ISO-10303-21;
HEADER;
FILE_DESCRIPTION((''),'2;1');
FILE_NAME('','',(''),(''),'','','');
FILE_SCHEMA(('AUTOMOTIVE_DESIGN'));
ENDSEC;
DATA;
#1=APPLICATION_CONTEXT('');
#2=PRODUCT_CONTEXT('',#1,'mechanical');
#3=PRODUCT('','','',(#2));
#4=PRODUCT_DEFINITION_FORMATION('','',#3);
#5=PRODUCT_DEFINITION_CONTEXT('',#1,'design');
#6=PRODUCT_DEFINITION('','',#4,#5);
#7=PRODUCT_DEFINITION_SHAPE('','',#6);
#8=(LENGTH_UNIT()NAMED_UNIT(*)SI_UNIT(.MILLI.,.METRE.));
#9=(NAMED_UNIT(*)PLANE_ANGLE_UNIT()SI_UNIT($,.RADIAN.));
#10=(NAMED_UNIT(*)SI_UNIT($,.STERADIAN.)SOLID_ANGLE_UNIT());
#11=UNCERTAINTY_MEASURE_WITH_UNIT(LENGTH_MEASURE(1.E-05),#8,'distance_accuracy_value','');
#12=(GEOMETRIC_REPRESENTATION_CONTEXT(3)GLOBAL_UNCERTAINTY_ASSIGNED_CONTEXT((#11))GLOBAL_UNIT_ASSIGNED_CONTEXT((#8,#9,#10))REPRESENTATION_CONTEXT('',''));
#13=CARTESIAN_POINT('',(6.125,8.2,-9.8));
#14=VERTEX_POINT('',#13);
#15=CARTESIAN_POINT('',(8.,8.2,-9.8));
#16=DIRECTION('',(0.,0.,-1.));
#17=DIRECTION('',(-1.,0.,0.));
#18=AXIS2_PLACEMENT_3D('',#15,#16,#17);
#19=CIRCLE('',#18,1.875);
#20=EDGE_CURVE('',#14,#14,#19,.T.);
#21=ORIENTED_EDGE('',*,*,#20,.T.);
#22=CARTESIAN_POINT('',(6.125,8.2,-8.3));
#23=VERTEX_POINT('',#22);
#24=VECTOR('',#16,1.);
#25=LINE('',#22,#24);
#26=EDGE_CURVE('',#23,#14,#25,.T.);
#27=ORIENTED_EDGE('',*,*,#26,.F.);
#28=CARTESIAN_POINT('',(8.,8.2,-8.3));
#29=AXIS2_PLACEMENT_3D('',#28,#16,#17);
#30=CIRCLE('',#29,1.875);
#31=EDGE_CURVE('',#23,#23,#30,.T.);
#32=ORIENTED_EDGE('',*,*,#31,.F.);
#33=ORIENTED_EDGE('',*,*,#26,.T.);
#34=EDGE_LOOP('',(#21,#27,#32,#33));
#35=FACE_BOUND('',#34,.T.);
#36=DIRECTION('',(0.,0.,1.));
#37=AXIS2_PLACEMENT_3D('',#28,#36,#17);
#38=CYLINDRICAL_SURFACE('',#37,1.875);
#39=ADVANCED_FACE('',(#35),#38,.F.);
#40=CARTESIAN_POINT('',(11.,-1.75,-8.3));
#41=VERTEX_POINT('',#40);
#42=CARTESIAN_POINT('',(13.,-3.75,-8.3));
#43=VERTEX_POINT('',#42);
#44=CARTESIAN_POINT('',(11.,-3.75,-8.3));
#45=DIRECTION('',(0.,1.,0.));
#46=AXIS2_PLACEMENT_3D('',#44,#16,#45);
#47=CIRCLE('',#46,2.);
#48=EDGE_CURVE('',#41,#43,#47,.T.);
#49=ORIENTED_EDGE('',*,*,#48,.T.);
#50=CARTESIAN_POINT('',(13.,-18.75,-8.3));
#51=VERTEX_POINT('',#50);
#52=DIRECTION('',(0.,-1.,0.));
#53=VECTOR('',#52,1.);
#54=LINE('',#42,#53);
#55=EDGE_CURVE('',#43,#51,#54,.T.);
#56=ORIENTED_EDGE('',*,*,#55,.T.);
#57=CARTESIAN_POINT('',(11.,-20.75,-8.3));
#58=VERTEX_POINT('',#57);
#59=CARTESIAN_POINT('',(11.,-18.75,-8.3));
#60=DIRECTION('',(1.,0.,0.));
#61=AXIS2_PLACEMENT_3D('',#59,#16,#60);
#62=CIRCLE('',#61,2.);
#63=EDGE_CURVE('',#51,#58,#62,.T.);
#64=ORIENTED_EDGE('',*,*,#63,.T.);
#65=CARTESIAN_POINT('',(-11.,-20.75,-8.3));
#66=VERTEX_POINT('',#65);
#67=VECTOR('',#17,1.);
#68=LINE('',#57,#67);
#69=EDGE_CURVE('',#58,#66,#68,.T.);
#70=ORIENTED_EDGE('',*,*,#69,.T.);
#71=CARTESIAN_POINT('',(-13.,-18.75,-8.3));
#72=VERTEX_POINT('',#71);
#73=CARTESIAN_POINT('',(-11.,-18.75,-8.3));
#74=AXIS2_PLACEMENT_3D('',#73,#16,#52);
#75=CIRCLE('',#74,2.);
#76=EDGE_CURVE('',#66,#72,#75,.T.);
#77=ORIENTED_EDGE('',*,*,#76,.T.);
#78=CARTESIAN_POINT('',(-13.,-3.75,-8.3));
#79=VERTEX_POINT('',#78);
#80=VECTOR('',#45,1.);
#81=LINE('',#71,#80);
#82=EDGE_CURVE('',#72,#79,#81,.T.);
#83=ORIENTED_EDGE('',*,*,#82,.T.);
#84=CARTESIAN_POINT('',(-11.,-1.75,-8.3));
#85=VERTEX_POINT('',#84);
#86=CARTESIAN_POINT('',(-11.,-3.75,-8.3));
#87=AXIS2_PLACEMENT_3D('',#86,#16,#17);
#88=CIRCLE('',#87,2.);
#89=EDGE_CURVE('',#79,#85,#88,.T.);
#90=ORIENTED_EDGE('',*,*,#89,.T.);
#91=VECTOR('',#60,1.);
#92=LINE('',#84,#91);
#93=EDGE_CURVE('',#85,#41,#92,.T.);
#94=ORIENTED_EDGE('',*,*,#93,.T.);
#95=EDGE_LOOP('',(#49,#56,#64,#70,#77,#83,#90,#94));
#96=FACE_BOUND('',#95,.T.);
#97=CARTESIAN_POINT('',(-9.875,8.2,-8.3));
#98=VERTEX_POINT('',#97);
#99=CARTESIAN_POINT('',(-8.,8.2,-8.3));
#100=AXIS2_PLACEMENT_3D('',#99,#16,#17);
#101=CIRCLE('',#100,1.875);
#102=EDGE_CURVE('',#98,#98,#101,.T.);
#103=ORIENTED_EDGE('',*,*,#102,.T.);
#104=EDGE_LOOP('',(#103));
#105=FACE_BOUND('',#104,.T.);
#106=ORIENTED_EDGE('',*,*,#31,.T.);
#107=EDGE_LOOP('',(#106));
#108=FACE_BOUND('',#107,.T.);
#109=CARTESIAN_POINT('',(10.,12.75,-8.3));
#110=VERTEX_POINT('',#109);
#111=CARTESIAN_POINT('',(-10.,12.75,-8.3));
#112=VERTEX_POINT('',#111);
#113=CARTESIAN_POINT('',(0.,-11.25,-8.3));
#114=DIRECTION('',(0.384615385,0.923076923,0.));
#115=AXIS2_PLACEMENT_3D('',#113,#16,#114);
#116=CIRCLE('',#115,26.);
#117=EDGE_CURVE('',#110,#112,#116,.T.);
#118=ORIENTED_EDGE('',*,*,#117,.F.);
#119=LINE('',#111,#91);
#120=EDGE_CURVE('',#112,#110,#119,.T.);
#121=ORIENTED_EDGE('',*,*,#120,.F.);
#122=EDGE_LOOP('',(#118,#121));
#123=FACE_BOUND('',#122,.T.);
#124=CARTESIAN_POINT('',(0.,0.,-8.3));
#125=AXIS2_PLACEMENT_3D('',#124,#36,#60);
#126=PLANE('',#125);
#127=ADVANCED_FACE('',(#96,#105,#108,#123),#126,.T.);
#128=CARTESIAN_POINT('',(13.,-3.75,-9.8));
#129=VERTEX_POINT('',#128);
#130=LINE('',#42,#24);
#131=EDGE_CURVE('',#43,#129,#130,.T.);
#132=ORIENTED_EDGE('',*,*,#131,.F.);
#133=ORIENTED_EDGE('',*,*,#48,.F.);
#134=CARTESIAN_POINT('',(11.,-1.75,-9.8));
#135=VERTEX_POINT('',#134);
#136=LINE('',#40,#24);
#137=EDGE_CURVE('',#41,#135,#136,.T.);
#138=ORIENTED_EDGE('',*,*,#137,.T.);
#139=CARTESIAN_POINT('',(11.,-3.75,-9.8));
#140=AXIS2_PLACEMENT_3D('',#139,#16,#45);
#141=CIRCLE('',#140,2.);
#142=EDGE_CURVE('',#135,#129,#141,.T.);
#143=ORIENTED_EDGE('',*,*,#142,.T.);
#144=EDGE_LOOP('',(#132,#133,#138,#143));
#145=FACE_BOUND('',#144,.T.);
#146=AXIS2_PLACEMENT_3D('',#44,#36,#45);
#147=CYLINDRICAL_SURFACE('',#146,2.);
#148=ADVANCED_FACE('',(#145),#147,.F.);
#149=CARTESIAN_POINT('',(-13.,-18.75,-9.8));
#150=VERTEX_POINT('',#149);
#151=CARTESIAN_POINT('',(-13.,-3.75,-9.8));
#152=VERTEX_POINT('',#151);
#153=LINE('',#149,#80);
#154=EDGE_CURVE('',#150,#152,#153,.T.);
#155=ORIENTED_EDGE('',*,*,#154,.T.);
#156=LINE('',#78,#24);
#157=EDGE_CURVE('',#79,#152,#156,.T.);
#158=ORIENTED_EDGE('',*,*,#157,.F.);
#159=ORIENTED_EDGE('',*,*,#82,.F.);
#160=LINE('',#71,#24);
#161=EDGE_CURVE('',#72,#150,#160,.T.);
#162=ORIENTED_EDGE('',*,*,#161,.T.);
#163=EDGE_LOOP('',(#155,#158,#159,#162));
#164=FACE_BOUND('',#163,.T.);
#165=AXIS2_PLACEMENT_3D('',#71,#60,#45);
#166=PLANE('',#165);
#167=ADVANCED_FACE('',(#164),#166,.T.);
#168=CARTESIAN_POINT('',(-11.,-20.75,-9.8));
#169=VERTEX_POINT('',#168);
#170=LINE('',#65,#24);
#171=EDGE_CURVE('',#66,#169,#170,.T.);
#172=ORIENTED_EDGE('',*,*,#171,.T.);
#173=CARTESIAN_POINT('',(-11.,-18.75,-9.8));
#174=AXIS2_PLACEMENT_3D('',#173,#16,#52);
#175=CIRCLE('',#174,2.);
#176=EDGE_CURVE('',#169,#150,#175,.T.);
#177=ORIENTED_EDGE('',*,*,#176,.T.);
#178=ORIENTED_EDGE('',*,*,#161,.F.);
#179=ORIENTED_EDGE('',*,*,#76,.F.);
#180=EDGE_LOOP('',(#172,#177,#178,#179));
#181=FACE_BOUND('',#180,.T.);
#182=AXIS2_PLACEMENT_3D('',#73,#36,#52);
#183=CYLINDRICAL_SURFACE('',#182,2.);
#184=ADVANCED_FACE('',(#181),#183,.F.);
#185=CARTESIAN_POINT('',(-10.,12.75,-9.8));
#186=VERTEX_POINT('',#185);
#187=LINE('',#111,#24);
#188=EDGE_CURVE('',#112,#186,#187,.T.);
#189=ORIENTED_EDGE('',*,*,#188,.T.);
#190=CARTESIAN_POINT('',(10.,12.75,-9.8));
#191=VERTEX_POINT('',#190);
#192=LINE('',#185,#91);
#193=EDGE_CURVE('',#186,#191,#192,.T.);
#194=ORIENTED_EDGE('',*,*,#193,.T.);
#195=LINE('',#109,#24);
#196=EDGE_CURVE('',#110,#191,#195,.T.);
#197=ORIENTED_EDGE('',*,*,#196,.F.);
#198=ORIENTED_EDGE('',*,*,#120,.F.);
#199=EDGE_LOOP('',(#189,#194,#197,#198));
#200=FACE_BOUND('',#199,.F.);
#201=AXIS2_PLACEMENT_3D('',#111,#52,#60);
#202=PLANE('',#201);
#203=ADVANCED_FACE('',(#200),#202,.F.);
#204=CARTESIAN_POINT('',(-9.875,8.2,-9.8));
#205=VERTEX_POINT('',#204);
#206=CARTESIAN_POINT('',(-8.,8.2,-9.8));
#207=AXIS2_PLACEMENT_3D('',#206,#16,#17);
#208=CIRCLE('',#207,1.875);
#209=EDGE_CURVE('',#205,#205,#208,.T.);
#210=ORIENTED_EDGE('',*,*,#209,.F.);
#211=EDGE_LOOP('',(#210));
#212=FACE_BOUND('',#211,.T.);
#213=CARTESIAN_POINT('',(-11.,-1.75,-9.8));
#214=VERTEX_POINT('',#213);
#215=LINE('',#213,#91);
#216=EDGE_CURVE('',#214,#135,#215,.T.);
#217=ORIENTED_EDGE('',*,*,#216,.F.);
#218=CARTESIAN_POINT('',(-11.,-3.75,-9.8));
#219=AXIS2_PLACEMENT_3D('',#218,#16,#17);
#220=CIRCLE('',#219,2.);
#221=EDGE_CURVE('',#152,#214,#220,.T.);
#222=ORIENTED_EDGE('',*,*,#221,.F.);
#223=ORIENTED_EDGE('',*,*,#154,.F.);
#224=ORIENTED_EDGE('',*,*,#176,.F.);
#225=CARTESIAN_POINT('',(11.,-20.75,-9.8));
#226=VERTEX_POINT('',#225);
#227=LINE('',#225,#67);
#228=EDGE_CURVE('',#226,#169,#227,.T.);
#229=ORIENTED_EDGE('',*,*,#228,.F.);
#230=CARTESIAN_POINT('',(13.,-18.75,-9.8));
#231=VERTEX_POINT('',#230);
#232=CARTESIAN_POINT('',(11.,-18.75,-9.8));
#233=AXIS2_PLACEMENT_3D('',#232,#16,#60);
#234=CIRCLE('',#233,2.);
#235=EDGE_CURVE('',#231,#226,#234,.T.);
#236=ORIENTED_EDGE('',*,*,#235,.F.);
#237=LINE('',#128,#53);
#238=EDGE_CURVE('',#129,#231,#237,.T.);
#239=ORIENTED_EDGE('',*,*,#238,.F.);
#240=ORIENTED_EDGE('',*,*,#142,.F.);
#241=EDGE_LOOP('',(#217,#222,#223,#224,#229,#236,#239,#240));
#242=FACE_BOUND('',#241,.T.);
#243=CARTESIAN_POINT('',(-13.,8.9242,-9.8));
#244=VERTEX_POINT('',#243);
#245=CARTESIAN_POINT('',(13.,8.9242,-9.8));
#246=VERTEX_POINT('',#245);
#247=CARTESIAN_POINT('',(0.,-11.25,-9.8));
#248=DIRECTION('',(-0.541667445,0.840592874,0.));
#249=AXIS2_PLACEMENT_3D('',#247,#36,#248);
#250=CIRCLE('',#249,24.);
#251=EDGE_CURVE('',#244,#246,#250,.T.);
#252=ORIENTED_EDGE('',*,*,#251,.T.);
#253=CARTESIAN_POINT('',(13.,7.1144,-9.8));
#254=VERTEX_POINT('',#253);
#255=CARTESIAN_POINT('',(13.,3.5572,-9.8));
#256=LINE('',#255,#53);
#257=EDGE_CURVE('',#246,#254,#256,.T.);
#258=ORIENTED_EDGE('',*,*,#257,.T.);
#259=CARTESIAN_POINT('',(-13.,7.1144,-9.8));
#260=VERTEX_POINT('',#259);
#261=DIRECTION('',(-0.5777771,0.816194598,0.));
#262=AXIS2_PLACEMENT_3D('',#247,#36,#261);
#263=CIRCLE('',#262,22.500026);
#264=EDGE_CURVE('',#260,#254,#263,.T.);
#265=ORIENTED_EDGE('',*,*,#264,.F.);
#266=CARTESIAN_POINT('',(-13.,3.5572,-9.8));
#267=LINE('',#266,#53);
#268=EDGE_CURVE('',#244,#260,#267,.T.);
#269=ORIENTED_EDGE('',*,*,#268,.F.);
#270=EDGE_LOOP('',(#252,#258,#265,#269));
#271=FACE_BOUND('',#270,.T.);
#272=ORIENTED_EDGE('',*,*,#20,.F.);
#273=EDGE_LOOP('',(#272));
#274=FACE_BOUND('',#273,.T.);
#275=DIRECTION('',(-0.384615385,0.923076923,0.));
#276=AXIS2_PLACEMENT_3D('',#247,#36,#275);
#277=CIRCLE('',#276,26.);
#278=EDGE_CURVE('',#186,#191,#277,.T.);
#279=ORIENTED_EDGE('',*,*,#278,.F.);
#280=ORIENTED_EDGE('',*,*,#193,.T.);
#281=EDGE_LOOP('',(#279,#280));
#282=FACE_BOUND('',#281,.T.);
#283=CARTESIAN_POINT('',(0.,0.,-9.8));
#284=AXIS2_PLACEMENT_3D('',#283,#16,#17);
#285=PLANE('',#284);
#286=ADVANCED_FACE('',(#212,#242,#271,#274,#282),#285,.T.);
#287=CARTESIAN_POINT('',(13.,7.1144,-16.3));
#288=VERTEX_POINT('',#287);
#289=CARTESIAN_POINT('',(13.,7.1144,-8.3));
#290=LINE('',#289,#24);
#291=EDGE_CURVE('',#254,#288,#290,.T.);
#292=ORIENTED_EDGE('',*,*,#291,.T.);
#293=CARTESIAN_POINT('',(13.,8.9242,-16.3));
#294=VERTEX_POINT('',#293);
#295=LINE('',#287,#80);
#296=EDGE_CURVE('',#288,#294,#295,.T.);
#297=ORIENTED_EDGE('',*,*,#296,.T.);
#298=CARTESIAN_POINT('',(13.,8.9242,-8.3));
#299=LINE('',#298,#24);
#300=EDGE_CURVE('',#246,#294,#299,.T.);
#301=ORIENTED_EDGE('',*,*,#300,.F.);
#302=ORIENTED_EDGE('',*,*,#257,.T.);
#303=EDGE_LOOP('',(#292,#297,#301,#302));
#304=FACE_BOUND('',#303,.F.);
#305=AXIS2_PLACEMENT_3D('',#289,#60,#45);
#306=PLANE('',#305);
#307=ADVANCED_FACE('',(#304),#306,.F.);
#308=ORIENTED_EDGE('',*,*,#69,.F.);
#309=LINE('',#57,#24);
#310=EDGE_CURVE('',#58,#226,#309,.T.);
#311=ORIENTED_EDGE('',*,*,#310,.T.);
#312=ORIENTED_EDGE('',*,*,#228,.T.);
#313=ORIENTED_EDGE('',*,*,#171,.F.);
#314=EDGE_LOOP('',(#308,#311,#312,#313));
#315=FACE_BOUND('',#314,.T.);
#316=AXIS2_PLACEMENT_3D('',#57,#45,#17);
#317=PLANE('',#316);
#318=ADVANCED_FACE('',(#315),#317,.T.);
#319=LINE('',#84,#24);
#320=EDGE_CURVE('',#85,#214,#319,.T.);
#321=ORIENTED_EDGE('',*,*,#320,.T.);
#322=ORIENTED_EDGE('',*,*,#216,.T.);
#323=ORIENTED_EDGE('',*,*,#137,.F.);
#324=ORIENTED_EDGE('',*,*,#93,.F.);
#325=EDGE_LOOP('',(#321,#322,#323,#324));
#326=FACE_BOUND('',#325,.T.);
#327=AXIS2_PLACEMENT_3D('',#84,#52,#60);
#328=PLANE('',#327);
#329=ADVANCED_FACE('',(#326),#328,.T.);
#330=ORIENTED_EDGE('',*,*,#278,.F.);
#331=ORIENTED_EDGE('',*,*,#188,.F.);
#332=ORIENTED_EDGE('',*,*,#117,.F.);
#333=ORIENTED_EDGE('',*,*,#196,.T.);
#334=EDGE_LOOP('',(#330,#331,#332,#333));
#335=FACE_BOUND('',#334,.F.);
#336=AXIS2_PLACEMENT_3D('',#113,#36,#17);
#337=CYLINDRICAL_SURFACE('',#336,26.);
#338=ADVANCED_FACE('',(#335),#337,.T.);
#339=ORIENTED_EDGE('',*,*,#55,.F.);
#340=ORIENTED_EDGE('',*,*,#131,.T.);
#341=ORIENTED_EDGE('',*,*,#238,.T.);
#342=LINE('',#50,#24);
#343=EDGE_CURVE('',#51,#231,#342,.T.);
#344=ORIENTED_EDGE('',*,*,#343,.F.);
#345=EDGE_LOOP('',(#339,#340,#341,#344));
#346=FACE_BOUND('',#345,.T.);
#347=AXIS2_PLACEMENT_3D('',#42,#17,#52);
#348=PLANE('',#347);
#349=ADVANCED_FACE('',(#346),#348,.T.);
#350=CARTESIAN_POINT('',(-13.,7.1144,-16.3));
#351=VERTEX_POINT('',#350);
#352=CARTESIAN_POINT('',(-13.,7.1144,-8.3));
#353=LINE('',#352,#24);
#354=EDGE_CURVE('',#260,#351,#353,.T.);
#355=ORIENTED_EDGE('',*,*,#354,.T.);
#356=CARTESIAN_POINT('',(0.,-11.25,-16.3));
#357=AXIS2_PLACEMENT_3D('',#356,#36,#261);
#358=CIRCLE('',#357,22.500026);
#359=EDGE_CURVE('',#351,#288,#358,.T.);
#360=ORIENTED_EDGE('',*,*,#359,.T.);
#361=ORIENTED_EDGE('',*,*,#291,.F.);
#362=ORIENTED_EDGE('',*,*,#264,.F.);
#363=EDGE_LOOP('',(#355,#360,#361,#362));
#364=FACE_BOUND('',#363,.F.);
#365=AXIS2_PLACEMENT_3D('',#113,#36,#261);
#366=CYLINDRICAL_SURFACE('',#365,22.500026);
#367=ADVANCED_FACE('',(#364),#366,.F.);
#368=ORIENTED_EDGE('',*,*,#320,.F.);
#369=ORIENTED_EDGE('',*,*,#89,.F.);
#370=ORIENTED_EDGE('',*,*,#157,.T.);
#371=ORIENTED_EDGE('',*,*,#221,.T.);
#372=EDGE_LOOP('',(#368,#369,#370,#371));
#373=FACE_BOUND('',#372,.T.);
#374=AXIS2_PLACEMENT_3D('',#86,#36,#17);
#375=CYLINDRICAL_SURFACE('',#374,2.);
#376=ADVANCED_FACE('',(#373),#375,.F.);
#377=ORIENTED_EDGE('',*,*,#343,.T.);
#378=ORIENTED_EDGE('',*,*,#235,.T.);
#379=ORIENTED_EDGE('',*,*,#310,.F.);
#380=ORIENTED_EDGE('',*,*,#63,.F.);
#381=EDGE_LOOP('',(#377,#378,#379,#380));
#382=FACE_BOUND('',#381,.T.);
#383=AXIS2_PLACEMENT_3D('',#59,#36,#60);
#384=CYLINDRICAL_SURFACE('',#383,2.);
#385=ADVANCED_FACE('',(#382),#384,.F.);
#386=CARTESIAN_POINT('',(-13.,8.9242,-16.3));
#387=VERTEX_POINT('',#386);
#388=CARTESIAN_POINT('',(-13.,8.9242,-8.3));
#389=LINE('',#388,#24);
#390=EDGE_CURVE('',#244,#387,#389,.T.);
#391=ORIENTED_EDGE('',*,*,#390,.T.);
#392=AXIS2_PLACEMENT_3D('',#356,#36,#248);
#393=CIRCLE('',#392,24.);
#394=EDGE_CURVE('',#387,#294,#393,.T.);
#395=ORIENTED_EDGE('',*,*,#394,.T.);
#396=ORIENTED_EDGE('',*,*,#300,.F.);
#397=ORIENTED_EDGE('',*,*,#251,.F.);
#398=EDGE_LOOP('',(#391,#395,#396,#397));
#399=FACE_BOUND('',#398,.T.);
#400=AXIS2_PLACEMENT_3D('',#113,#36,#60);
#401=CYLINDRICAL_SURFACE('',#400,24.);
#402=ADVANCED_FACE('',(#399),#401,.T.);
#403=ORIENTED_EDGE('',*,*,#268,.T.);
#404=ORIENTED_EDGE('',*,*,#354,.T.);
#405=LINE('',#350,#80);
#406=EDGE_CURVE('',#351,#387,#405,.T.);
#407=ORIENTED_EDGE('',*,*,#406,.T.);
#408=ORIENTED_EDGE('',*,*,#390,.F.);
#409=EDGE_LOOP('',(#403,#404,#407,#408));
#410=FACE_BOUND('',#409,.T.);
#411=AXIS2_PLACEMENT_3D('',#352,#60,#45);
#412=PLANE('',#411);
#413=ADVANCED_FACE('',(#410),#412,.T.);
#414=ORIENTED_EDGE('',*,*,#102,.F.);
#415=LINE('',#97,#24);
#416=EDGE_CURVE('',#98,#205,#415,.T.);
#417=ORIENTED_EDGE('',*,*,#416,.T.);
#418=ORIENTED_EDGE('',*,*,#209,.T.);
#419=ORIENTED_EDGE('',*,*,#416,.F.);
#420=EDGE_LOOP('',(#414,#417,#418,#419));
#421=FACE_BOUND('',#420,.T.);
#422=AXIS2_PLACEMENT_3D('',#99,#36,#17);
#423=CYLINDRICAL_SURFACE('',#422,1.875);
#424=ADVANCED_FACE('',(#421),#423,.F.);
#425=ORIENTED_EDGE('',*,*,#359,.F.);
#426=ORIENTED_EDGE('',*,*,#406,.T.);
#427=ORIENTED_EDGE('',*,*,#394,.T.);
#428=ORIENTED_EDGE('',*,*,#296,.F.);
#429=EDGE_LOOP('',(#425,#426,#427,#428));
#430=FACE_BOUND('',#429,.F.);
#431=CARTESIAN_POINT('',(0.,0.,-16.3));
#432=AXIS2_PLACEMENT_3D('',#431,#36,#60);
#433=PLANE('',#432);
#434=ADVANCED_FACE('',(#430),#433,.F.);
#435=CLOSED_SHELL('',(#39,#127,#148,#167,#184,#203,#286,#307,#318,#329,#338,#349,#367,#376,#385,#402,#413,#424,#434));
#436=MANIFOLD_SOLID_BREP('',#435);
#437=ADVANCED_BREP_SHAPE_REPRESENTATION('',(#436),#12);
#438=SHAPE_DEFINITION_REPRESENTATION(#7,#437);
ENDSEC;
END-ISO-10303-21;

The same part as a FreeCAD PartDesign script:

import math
import FreeCAD as App
import Part
import Sketcher

V = App.Vector

doc = App.newDocument("Part")
body = doc.addObject("PartDesign::Body", "Body")

# Sketch on XY plane
sketch1 = doc.addObject("Sketcher::SketchObject", "Sketch")
body.addObject(sketch1)
sketch1.AttachmentSupport = (doc.XY_Plane, [""])
sketch1.MapMode = "FlatFace"
sketch1.AttachmentOffset = App.Placement(V(0, 0, -8.3), App.Rotation())
sketch1.addGeometry(Part.ArcOfCircle(Part.Circle(V(0, -11.25, 0), V(0, 0, 1), 26), math.radians(112.619865), math.radians(427.380135)), False)
sketch1.addGeometry(Part.LineSegment(V(-10, 12.75, 0), V(10, 12.75, 0)), False)
sketch1.addGeometry(Part.LineSegment(V(11, -1.75, 0), V(-11, -1.75, 0)), False)
sketch1.addGeometry(Part.ArcOfCircle(Part.Circle(V(-11, -3.75, 0), V(0, 0, 1), 2), math.radians(90), math.radians(180)), False)
sketch1.addGeometry(Part.LineSegment(V(-13, -3.75, 0), V(-13, -18.75, 0)), False)
sketch1.addGeometry(Part.ArcOfCircle(Part.Circle(V(-11, -18.75, 0), V(0, 0, 1), 2), math.radians(180), math.radians(270)), False)
sketch1.addGeometry(Part.LineSegment(V(-11, -20.75, 0), V(11, -20.75, 0)), False)
sketch1.addGeometry(Part.ArcOfCircle(Part.Circle(V(11, -18.75, 0), V(0, 0, 1), 2), math.radians(-90), math.radians(0)), False)
sketch1.addGeometry(Part.LineSegment(V(13, -18.75, 0), V(13, -3.75, 0)), False)
sketch1.addGeometry(Part.ArcOfCircle(Part.Circle(V(11, -3.75, 0), V(0, 0, 1), 2), math.radians(0), math.radians(90)), False)
sketch1.addGeometry(Part.Circle(V(8, 8.2, 0), V(0, 0, 1), 1.875), False)
sketch1.addGeometry(Part.Circle(V(-8, 8.2, 0), V(0, 0, 1), 1.875), False)
sketch1.addConstraint(Sketcher.Constraint("Coincident", 0, 1, 1, 1))
sketch1.addConstraint(Sketcher.Constraint("Coincident", 1, 2, 0, 2))
sketch1.addConstraint(Sketcher.Constraint("Tangent", 2, 2, 3, 1))
sketch1.addConstraint(Sketcher.Constraint("Tangent", 3, 2, 4, 1))
sketch1.addConstraint(Sketcher.Constraint("Tangent", 4, 2, 5, 1))
sketch1.addConstraint(Sketcher.Constraint("Tangent", 5, 2, 6, 1))
sketch1.addConstraint(Sketcher.Constraint("Tangent", 6, 2, 7, 1))
sketch1.addConstraint(Sketcher.Constraint("Tangent", 7, 2, 8, 1))
sketch1.addConstraint(Sketcher.Constraint("Tangent", 8, 2, 9, 1))
sketch1.addConstraint(Sketcher.Constraint("Tangent", 9, 2, 2, 1))
sketch1.addConstraint(Sketcher.Constraint("Horizontal", 1))
sketch1.addConstraint(Sketcher.Constraint("Horizontal", 2))
sketch1.addConstraint(Sketcher.Constraint("Vertical", 4))
sketch1.addConstraint(Sketcher.Constraint("Horizontal", 6))
sketch1.addConstraint(Sketcher.Constraint("Vertical", 8))
sketch1.addConstraint(Sketcher.Constraint("Equal", 3, 5))
sketch1.addConstraint(Sketcher.Constraint("Equal", 5, 7))
sketch1.addConstraint(Sketcher.Constraint("Equal", 7, 9))
sketch1.addConstraint(Sketcher.Constraint("Equal", 10, 11))
sketch1.addConstraint(Sketcher.Constraint("Symmetric", 10, 3, 11, 3, -2))
sketch1.addConstraint(Sketcher.Constraint("PointOnObject", 0, 3, -2))
sketch1.addConstraint(Sketcher.Constraint("Radius", 0, 26.0))
sketch1.addConstraint(Sketcher.Constraint("Radius", 3, 2.0))
sketch1.addConstraint(Sketcher.Constraint("Diameter", 10, 3.75))
sketch1.addConstraint(Sketcher.Constraint("DistanceX", 1, 1, 1, 2, 20.0))
sketch1.addConstraint(Sketcher.Constraint("DistanceX", 3, 3, 10, 3, 19.0))
sketch1.addConstraint(Sketcher.Constraint("DistanceX", 11, 3, 9, 3, 19.0))
sketch1.addConstraint(Sketcher.Constraint("DistanceX", 0, 1, 11, 3, 2.0))
sketch1.addConstraint(Sketcher.Constraint("DistanceY", 4, 2, 4, 1, 15.0))
sketch1.addConstraint(Sketcher.Constraint("DistanceY", 3, 3, -1, 1, 3.75))
sketch1.addConstraint(Sketcher.Constraint("DistanceY", -1, 1, 10, 3, 8.2))
sketch1.addConstraint(Sketcher.Constraint("DistanceY", 0, 3, 3, 3, 7.5))
pad1 = doc.addObject("PartDesign::Pad", "Pad")
body.addObject(pad1)
pad1.Profile = sketch1
pad1.Length = 1.5
pad1.Reversed = True

# Sketch on XY plane
sketch2 = doc.addObject("Sketcher::SketchObject", "Sketch001")
body.addObject(sketch2)
sketch2.AttachmentSupport = (doc.XY_Plane, [""])
sketch2.MapMode = "FlatFace"
sketch2.AttachmentOffset = App.Placement(V(0, 0, -8.3), App.Rotation())
sketch2.addGeometry(Part.ArcOfCircle(Part.Circle(V(0, -11.25, 0), V(0, 0, 1), 24), math.radians(122.797221), math.radians(417.202779)), False)
sketch2.addGeometry(Part.LineSegment(V(13, 8.9242, 0), V(13, 7.1144, 0)), False)
sketch2.addGeometry(Part.ArcOfCircle(Part.Circle(V(0, -11.25, 0), V(0, 0, 1), 22.500026), math.radians(125.294347), math.radians(414.705653)), False)
sketch2.addGeometry(Part.LineSegment(V(-13, 7.1144, 0), V(-13, 8.9242, 0)), False)
sketch2.addConstraint(Sketcher.Constraint("Coincident", 0, 2, 1, 1))
sketch2.addConstraint(Sketcher.Constraint("Coincident", 1, 2, 2, 2))
sketch2.addConstraint(Sketcher.Constraint("Coincident", 2, 1, 3, 1))
sketch2.addConstraint(Sketcher.Constraint("Coincident", 3, 2, 0, 1))
sketch2.addConstraint(Sketcher.Constraint("Vertical", 1))
sketch2.addConstraint(Sketcher.Constraint("Vertical", 3))
sketch2.addConstraint(Sketcher.Constraint("Coincident", 2, 3, 0, 3))
sketch2.addConstraint(Sketcher.Constraint("Symmetric", 1, 2, 2, 1, -2))
sketch2.addConstraint(Sketcher.Constraint("Radius", 0, 24.0))
sketch2.addConstraint(Sketcher.Constraint("DistanceX", 2, 1, 1, 2, 26.0))
sketch2.addConstraint(Sketcher.Constraint("Radius", 2, 22.5))
sketch2.addConstraint(Sketcher.Constraint("DistanceY", 0, 3, -1, 1, 11.25))
pad2 = doc.addObject("PartDesign::Pad", "Pad001")
body.addObject(pad2)
pad2.Profile = sketch2
pad2.Length = 8
pad2.Reversed = True

doc.recompute()
